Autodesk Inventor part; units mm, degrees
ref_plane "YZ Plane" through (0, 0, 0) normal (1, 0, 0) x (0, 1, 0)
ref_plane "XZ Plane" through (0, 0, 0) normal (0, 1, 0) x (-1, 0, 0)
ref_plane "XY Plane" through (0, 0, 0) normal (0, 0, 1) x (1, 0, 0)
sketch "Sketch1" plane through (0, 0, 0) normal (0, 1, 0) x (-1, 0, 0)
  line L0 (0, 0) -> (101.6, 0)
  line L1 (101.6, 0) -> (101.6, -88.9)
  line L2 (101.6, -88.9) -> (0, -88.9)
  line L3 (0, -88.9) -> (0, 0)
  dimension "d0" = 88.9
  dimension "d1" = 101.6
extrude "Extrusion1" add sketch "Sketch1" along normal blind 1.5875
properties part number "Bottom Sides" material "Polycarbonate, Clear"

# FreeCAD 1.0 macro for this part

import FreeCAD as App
import Part
import Sketcher

V = App.Vector
Q = App.Units.Quantity


def add_polygon(sketch, points):
    """Adds a closed chain of lines whose ends are joined by coincident constraints."""
    first, n = sketch.GeometryCount, len(points)
    for a, b in zip(points, points[1:] + points[:1]):
        sketch.addGeometry(Part.LineSegment(App.Vector(*a, 0), App.Vector(*b, 0)), False)
    for i in range(n):
        sketch.addConstraint(Sketcher.Constraint("Coincident", first + i, 2, first + (i + 1) % n, 1))

doc = App.newDocument("Part")
body = doc.addObject("PartDesign::Body", "Body")

sketch1 = doc.addObject("Sketcher::SketchObject", "Sketch")
body.addObject(sketch1)
sketch1.AttachmentSupport = (doc.XZ_Plane, [""])
sketch1.MapMode = "FlatFace"
add_polygon(sketch1, [(-102, 0), (0, 0), (0, -89), (-102, -89)])
sketch1.addConstraint([
    Sketcher.Constraint("Horizontal", 0),
    Sketcher.Constraint("Vertical", 1),
    Sketcher.Constraint("Horizontal", 2),
    Sketcher.Constraint("Vertical", 3),
    Sketcher.Constraint("Coincident", 0, 2, -1, 1),
    Sketcher.Constraint("DistanceX", 0, 1, 0, 2, Q("4 in")),
    Sketcher.Constraint("DistanceY", 1, 2, 1, 1, Q("3.5 in")),
])
pad1 = doc.addObject("PartDesign::Pad", "Pad")
body.addObject(pad1)
pad1.Profile = sketch1
pad1.Length = Q("0.0625 in")
pad1.Reversed = True

doc.recompute()
